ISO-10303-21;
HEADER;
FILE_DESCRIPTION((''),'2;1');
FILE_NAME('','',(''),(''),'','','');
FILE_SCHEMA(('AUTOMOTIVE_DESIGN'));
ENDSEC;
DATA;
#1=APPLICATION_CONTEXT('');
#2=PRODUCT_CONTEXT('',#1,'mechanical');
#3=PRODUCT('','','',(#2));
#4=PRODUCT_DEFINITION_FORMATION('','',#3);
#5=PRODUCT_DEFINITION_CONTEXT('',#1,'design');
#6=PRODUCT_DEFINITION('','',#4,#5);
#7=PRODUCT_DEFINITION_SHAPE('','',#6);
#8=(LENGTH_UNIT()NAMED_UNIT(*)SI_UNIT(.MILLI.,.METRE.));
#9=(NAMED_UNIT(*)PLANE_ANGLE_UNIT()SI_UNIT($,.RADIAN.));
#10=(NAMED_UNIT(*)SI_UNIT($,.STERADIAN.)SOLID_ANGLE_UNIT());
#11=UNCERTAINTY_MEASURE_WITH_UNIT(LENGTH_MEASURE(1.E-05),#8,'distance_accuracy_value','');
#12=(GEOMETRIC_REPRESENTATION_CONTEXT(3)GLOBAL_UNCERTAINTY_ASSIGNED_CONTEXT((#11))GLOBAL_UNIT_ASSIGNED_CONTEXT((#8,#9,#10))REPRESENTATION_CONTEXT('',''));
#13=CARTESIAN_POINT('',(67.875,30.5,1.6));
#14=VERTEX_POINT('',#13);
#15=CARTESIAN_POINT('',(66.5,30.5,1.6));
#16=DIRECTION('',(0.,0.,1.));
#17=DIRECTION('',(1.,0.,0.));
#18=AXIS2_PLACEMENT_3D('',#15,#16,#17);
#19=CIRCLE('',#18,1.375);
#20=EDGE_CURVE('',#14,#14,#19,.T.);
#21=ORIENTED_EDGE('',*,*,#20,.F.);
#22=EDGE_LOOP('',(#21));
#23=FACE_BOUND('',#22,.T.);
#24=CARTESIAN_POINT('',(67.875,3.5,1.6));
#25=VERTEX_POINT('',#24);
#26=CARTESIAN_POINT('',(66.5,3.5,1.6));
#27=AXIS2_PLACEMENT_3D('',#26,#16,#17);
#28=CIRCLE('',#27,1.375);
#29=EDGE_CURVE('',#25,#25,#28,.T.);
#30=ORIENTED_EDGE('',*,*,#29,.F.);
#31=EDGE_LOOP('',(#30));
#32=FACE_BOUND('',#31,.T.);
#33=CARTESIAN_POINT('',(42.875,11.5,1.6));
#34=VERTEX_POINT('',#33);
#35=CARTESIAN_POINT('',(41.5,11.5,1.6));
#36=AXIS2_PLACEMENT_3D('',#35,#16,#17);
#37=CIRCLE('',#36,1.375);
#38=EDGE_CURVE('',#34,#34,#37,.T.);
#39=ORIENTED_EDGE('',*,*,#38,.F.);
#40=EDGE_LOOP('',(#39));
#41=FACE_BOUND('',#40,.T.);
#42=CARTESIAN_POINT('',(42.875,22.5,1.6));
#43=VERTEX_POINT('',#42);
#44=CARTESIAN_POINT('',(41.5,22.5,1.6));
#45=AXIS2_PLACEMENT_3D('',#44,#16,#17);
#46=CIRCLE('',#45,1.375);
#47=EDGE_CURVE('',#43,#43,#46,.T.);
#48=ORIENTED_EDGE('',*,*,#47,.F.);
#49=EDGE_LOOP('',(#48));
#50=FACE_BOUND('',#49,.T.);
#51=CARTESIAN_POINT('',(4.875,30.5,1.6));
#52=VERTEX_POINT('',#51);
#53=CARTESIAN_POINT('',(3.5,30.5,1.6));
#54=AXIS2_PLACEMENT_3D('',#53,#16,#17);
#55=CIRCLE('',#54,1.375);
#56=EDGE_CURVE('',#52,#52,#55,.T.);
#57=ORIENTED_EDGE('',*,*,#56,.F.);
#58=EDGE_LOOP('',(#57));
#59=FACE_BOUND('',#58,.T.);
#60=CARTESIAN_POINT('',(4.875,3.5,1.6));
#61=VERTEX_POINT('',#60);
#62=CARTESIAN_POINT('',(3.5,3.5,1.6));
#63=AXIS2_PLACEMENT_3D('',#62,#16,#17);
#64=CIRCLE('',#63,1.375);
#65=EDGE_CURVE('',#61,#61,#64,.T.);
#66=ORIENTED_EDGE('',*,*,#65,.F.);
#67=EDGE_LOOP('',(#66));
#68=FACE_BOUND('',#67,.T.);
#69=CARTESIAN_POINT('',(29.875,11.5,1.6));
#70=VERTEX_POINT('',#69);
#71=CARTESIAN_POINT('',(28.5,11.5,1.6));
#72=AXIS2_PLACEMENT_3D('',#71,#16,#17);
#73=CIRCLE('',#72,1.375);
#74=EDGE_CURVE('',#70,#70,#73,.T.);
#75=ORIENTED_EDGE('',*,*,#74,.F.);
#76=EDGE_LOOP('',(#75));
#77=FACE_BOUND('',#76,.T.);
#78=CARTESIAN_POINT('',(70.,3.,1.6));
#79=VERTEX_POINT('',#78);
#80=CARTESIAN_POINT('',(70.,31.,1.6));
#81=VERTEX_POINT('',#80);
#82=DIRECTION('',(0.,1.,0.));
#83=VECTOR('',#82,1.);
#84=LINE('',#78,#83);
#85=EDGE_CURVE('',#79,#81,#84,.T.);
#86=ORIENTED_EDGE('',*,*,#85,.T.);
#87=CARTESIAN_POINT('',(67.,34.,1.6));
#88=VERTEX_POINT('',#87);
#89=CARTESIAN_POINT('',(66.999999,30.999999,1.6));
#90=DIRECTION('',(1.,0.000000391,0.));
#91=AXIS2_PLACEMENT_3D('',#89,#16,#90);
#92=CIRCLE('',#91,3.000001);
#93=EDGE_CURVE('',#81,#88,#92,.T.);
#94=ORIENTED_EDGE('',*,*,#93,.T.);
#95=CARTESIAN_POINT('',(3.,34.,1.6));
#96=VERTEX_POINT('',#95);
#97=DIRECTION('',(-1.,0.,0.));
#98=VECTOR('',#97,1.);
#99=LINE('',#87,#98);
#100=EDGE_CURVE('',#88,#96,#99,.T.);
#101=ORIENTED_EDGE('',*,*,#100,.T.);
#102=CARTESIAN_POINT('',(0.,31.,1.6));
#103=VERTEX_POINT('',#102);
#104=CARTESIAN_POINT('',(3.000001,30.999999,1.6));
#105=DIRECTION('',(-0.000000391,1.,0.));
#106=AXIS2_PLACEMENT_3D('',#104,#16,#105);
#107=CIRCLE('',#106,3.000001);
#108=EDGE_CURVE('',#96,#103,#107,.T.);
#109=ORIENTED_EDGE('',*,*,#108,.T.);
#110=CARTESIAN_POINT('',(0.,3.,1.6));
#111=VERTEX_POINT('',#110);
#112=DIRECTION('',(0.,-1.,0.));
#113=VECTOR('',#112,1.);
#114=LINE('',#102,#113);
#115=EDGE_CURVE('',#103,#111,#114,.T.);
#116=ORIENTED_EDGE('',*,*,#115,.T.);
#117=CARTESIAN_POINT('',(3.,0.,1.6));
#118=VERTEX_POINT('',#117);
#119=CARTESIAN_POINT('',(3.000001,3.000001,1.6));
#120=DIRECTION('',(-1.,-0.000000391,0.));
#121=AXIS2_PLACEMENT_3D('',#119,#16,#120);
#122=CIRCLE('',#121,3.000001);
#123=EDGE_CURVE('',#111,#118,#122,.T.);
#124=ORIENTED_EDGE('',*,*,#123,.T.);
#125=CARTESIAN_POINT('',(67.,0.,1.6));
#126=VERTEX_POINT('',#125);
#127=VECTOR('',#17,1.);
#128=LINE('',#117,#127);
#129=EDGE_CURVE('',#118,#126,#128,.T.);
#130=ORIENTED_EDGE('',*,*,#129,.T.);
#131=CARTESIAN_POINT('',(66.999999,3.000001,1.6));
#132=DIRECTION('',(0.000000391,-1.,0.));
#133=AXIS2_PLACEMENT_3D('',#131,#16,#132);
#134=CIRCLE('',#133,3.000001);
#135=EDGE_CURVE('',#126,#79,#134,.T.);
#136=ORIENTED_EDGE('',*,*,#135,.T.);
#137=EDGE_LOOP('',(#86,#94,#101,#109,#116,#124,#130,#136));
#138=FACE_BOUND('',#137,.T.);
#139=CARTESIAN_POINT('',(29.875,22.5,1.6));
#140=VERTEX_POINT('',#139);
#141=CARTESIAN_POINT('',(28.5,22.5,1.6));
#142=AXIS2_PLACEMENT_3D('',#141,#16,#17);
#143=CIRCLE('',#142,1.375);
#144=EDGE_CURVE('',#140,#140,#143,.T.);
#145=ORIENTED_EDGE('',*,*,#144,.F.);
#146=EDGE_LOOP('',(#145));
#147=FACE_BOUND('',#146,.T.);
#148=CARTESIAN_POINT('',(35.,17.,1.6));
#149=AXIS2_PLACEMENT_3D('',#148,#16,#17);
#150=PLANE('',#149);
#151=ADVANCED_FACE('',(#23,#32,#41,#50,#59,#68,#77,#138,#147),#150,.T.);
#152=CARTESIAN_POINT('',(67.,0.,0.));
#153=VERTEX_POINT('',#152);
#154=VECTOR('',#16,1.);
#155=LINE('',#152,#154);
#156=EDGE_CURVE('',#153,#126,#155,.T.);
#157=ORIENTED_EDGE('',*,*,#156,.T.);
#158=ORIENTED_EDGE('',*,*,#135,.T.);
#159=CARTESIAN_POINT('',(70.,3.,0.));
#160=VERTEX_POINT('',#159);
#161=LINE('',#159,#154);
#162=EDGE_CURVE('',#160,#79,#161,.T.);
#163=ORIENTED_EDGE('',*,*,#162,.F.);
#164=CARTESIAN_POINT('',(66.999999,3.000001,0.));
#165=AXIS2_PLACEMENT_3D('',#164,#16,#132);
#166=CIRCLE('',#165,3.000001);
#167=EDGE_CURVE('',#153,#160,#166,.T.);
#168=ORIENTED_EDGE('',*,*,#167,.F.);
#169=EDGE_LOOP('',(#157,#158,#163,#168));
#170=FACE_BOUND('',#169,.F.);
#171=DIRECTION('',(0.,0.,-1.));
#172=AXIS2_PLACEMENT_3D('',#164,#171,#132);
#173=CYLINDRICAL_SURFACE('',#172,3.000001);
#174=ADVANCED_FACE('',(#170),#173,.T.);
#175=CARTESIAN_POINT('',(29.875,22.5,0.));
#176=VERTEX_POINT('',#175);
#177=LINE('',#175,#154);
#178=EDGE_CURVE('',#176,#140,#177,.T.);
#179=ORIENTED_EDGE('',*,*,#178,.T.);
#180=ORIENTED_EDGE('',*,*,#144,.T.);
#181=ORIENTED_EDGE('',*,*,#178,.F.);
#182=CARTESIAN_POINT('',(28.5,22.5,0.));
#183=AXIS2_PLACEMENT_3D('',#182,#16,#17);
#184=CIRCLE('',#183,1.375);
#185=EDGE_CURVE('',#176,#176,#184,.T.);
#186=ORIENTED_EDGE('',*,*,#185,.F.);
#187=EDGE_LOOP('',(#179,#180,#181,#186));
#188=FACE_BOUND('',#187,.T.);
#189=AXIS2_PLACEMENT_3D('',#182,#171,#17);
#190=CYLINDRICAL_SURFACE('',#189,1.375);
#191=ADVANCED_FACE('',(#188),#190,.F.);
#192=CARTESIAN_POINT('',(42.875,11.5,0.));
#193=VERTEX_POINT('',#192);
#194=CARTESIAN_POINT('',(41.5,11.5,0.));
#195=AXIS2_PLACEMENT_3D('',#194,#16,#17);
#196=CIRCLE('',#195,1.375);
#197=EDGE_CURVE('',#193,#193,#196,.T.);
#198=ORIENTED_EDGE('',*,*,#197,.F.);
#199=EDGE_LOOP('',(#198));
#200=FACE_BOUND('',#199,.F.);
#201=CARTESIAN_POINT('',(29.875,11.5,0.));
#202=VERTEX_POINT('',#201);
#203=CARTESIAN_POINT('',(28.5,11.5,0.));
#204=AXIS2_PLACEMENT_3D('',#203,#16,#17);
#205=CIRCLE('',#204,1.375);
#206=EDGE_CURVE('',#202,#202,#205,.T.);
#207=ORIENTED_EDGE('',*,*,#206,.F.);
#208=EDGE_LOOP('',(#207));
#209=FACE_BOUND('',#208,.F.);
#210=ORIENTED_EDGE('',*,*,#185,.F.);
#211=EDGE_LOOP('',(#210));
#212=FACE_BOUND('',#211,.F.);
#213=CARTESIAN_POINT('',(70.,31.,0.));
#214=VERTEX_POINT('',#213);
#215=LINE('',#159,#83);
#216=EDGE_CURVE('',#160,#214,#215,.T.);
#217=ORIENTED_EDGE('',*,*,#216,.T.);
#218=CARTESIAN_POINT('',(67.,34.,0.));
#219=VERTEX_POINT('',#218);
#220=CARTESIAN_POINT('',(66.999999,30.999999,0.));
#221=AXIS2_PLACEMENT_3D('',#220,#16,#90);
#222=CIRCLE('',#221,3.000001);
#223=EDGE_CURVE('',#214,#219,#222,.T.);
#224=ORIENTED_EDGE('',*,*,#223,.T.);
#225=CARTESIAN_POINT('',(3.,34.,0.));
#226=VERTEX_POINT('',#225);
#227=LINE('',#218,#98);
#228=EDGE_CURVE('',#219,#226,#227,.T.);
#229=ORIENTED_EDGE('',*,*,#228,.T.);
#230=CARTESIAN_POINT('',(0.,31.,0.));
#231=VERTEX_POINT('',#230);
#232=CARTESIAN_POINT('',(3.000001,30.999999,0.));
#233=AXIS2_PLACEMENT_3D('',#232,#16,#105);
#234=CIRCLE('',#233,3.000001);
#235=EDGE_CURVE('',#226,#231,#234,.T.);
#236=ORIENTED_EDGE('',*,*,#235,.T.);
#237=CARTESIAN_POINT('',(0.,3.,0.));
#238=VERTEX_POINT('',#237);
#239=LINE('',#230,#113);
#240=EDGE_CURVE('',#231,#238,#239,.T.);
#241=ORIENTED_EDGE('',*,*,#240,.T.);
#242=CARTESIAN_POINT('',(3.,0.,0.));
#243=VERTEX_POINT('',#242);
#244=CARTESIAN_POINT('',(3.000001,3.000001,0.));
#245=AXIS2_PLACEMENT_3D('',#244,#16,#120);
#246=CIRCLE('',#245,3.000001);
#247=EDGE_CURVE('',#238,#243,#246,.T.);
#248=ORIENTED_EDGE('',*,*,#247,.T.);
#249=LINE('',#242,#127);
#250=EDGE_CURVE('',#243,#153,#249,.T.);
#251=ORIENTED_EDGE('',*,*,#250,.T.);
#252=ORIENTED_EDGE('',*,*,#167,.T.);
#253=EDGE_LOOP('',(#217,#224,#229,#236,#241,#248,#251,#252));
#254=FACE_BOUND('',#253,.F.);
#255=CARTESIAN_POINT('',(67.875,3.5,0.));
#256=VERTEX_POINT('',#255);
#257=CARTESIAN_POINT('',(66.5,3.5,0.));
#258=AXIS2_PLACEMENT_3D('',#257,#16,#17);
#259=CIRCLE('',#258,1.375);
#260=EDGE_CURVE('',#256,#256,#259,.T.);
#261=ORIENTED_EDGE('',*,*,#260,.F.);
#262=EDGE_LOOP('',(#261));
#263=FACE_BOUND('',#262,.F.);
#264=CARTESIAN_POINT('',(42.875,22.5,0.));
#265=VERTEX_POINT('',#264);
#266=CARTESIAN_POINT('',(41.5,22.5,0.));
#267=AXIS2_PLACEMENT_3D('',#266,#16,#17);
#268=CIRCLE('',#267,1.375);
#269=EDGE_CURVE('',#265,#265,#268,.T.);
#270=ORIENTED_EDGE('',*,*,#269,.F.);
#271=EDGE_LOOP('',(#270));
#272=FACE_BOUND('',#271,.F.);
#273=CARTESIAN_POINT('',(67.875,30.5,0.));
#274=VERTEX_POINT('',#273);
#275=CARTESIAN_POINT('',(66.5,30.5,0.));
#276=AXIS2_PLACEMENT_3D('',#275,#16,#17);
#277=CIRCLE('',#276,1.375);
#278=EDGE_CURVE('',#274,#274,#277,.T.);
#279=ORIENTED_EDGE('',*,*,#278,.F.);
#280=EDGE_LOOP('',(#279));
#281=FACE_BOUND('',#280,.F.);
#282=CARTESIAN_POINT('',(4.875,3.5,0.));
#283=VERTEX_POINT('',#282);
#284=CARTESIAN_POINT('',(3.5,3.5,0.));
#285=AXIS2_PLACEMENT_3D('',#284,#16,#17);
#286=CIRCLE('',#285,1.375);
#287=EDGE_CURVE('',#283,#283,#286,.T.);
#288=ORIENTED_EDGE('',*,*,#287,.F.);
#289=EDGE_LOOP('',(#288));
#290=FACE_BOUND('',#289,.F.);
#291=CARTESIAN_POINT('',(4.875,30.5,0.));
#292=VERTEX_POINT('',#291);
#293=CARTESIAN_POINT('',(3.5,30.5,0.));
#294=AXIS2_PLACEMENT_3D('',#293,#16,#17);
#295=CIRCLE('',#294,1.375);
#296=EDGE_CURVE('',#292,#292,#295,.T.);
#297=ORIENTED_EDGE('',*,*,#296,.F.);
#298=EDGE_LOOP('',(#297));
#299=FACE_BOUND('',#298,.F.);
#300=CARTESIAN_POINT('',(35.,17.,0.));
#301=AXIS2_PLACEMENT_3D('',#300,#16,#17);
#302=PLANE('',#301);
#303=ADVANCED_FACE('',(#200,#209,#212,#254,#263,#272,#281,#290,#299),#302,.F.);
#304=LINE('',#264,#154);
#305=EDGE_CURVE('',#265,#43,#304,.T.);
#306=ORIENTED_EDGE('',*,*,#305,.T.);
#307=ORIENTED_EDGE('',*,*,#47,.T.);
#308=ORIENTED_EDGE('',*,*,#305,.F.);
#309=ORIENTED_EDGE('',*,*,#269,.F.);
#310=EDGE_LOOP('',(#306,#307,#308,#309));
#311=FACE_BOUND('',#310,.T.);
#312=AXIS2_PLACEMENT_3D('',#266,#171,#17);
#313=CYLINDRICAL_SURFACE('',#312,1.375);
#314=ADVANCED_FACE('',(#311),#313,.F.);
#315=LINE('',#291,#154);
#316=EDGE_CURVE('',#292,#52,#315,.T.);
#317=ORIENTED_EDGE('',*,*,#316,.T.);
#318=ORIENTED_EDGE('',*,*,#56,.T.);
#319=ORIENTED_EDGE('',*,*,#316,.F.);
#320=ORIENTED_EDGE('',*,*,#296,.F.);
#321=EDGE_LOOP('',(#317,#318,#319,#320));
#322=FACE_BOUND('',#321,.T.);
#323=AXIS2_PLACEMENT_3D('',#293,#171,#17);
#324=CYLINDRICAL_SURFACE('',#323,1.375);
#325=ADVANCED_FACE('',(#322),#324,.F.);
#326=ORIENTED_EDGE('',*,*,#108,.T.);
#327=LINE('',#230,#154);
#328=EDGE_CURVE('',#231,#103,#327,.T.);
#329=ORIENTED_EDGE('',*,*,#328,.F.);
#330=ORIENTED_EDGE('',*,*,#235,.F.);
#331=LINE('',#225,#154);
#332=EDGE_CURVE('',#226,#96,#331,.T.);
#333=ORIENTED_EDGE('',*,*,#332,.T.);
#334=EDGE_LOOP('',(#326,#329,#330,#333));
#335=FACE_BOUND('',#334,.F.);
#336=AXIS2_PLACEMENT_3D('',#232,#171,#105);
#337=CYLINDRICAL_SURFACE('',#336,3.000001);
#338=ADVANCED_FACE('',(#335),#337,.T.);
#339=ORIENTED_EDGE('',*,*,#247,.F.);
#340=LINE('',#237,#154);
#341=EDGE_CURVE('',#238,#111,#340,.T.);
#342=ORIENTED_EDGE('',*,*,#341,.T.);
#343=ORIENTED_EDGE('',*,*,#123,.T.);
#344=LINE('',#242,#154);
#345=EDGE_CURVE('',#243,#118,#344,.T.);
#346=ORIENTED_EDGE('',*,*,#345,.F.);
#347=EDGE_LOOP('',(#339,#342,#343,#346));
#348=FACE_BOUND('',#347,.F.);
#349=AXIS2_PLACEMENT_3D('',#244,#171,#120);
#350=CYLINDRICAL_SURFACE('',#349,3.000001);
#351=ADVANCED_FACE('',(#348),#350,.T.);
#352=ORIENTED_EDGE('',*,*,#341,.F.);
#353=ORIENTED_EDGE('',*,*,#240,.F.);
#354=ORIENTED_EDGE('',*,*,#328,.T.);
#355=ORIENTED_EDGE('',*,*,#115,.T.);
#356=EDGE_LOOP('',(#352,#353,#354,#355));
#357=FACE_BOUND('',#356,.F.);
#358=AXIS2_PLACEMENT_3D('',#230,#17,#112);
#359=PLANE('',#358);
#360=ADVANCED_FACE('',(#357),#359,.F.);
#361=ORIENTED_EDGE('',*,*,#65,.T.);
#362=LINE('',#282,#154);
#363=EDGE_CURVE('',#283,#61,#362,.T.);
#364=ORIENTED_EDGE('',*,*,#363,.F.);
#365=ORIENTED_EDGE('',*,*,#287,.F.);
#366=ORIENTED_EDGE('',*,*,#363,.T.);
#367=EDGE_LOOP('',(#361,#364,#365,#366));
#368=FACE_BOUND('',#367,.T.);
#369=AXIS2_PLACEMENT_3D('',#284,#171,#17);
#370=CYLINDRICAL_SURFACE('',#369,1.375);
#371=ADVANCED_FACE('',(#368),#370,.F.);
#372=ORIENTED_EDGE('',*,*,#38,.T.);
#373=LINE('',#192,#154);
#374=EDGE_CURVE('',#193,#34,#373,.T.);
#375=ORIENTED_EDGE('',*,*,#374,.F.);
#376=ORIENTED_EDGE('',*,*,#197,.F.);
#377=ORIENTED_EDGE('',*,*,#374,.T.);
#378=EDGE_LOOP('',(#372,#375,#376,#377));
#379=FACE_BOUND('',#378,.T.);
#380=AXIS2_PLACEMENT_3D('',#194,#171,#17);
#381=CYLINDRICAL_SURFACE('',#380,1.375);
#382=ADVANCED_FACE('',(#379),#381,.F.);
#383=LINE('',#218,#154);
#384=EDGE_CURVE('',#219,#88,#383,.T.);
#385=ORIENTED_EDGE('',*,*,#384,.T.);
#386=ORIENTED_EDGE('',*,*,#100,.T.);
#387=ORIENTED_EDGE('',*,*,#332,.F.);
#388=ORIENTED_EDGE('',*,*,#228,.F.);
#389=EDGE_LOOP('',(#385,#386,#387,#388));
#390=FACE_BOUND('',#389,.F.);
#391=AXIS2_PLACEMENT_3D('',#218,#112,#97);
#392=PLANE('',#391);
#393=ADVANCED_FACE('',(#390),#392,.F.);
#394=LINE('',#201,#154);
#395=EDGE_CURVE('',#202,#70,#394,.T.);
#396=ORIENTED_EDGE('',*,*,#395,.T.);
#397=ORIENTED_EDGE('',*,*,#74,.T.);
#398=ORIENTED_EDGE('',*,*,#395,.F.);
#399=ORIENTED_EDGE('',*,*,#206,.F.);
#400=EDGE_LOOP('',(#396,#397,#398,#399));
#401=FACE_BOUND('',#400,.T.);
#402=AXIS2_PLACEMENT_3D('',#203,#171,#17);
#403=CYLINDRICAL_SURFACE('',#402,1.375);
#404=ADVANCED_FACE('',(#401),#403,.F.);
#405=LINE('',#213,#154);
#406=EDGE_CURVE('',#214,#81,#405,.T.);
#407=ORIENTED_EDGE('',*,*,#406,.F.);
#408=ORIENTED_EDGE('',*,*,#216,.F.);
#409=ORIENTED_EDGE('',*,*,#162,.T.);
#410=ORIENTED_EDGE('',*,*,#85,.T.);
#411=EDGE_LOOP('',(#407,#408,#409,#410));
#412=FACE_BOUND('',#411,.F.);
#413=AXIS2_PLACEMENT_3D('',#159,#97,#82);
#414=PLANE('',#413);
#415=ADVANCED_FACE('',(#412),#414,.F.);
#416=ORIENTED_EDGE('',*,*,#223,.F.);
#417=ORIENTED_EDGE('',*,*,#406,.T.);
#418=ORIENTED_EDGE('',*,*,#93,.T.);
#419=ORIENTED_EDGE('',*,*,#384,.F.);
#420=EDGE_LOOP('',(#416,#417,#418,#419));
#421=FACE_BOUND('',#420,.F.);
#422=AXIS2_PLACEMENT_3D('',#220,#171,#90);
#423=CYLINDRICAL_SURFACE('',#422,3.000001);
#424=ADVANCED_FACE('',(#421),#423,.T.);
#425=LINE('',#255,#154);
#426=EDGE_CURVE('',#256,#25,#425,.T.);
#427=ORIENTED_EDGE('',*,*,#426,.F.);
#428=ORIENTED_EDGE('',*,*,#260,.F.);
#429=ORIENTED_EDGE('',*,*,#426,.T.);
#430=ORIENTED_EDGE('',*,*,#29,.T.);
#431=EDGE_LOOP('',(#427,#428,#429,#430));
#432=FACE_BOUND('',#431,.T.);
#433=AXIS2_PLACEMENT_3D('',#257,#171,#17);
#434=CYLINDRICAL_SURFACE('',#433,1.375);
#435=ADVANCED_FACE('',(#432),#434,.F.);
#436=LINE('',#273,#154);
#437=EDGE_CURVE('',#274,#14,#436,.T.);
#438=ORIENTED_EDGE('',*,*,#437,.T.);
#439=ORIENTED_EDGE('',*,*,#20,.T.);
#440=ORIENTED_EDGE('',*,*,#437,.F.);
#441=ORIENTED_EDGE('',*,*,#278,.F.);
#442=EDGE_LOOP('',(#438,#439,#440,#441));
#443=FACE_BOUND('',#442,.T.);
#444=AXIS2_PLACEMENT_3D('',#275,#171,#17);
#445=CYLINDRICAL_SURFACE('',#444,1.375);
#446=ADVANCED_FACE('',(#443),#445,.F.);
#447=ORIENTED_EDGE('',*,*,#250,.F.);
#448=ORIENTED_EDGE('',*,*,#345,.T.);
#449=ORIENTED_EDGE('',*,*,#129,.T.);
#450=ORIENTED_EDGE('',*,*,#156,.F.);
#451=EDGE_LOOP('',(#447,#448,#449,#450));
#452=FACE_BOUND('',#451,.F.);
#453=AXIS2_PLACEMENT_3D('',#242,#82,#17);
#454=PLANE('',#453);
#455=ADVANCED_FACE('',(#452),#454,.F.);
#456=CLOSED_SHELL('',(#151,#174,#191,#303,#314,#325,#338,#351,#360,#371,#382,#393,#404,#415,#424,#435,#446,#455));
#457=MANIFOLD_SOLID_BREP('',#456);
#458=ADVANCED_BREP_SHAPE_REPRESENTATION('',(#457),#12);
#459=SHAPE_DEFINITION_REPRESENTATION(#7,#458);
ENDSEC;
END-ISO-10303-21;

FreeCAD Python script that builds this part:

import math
import FreeCAD as App
import Part
import Sketcher
from FreeCAD import Vector

doc = App.newDocument("Part")
body = doc.addObject("PartDesign::Body", "Body")

# Sketch on XY plane
sketch1 = doc.addObject("Sketcher::SketchObject", "Sketch")
body.addObject(sketch1)
sketch1.AttachmentSupport = (doc.XY_Plane, [""])
sketch1.MapMode = "FlatFace"
sketch1.addGeometry([
    Part.ArcOfCircle(Part.Circle(Vector(3, 3, 0), Vector(0, 0, 1), 3), math.radians(-180), math.radians(-90)),  # 0
    Part.LineSegment(Vector(3, 0, 0), Vector(67, 0, 0)),  # 1
    Part.ArcOfCircle(Part.Circle(Vector(67, 3, 0), Vector(0, 0, 1), 3), math.radians(-90), math.radians(0)),  # 2
    Part.LineSegment(Vector(70, 3, 0), Vector(70, 31, 0)),  # 3
    Part.ArcOfCircle(Part.Circle(Vector(67, 31, 0), Vector(0, 0, 1), 3), math.radians(0), math.radians(90)),  # 4
    Part.LineSegment(Vector(67, 34, 0), Vector(3, 34, 0)),  # 5
    Part.ArcOfCircle(Part.Circle(Vector(3, 31, 0), Vector(0, 0, 1), 3), math.radians(90), math.radians(180)),  # 6
    Part.LineSegment(Vector(0, 31, 0), Vector(0, 3, 0)),  # 7
    Part.Circle(Vector(3.5, 3.5, 0), Vector(0, 0, 1), 1.4),  # 8
    Part.Circle(Vector(28.5, 11.5, 0), Vector(0, 0, 1), 1.4),  # 9
    Part.Circle(Vector(66.5, 3.5, 0), Vector(0, 0, 1), 1.4),  # 10
    Part.Circle(Vector(41.5, 11.5, 0), Vector(0, 0, 1), 1.4),  # 11
    Part.Circle(Vector(28.5, 22.5, 0), Vector(0, 0, 1), 1.4),  # 12
    Part.Circle(Vector(3.5, 30.5, 0), Vector(0, 0, 1), 1.4),  # 13
    Part.Circle(Vector(41.5, 22.5, 0), Vector(0, 0, 1), 1.4),  # 14
    Part.Circle(Vector(66.5, 30.5, 0), Vector(0, 0, 1), 1.4),  # 15
], False)
sketch1.addConstraint([
    Sketcher.Constraint("Tangent", 0, 2, 1, 1),
    Sketcher.Constraint("Tangent", 1, 2, 2, 1),
    Sketcher.Constraint("Tangent", 2, 2, 3, 1),
    Sketcher.Constraint("Tangent", 3, 2, 4, 1),
    Sketcher.Constraint("Tangent", 4, 2, 5, 1),
    Sketcher.Constraint("Tangent", 5, 2, 6, 1),
    Sketcher.Constraint("Tangent", 6, 2, 7, 1),
    Sketcher.Constraint("Tangent", 7, 2, 0, 1),
    Sketcher.Constraint("Horizontal", 1),
    Sketcher.Constraint("Vertical", 3),
    Sketcher.Constraint("Horizontal", 5),
    Sketcher.Constraint("Vertical", 7),
    Sketcher.Constraint("Equal", 0, 2),
    Sketcher.Constraint("Equal", 2, 4),
    Sketcher.Constraint("Equal", 4, 6),
    Sketcher.Constraint("Equal", 8, 9),
    Sketcher.Constraint("Equal", 9, 10),
    Sketcher.Constraint("Equal", 10, 11),
    Sketcher.Constraint("Equal", 11, 12),
    Sketcher.Constraint("Equal", 12, 13),
    Sketcher.Constraint("Equal", 13, 14),
    Sketcher.Constraint("Equal", 14, 15),
    Sketcher.Constraint("PointOnObject", 0, 2, -1),
    Sketcher.Constraint("PointOnObject", 6, 2, -2),
    Sketcher.Constraint("Horizontal", 8, 3, 10, 3),
    Sketcher.Constraint("Horizontal", 9, 3, 11, 3),
    Sketcher.Constraint("Horizontal", 12, 3, 14, 3),
    Sketcher.Constraint("Horizontal", 13, 3, 15, 3),
    Sketcher.Constraint("Vertical", 9, 3, 12, 3),
    Sketcher.Constraint("Vertical", 8, 3, 13, 3),
    Sketcher.Constraint("Vertical", 11, 3, 14, 3),
    Sketcher.Constraint("Vertical", 10, 3, 15, 3),
    Sketcher.Constraint("Radius", 0, 3.000001),
    Sketcher.Constraint("Diameter", 8, 2.75),
    Sketcher.Constraint("DistanceX", 1, 1, 1, 2, 64.0),
    Sketcher.Constraint("DistanceY", 3, 1, 3, 2, 28.0),
    Sketcher.Constraint("DistanceX", 8, 3, 9, 3, 25.0),
    Sketcher.Constraint("DistanceY", 8, 3, 9, 3, 8.0),
    Sketcher.Constraint("DistanceX", 9, 3, 10, 3, 38.0),
    Sketcher.Constraint("DistanceX", 9, 3, 11, 3, 13.0),
    Sketcher.Constraint("DistanceY", 9, 3, 12, 3, 11.0),
    Sketcher.Constraint("DistanceY", 12, 3, 13, 3, 8.0),
    Sketcher.Constraint("DistanceX", -1, 1, 8, 3, 3.5),
    Sketcher.Constraint("DistanceY", -1, 1, 8, 3, 3.5),
])
pad1 = doc.addObject("PartDesign::Pad", "Pad")
body.addObject(pad1)
pad1.Profile = sketch1
pad1.Length = 1.6

doc.recompute()
